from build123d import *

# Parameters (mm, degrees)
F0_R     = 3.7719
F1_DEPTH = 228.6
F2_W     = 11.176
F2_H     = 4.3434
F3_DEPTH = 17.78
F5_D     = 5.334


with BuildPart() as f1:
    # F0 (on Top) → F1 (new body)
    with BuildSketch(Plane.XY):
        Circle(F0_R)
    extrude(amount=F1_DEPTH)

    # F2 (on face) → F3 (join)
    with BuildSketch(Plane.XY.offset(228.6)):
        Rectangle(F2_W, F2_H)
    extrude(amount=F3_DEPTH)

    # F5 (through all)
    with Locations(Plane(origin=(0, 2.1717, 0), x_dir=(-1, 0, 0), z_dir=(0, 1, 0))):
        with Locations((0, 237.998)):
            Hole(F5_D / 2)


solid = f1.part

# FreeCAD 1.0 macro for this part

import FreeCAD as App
import Part
import Sketcher

V = App.Vector
Q = App.Units.Quantity


def add_polygon(sketch, points):
    """Adds a closed chain of lines whose ends are joined by coincident constraints."""
    first, n = sketch.GeometryCount, len(points)
    for a, b in zip(points, points[1:] + points[:1]):
        sketch.addGeometry(Part.LineSegment(App.Vector(*a, 0), App.Vector(*b, 0)), False)
    for i in range(n):
        sketch.addConstraint(Sketcher.Constraint("Coincident", first + i, 2, first + (i + 1) % n, 1))

doc = App.newDocument("Part")
body = doc.addObject("PartDesign::Body", "Body")

# Sketch on XY plane
sketch1 = body.newObject("Sketcher::SketchObject", "Sketch")
sketch1.AttachmentSupport = (doc.getObject("XY_Plane"), [""])
sketch1.MapMode = "FlatFace"
sketch1.addGeometry(Part.Circle(V(0, 0, 0), V(0, 0, 1), 3.8), False)
sketch1.addConstraint([
    Sketcher.Constraint("Coincident", 0, 3, -1, 1),
    Sketcher.Constraint("Diameter", 0, Q("0.297 in")),
])
pad1 = body.newObject("PartDesign::Pad", "Pad")
pad1.Profile = sketch1
pad1.Length = Q("9 in")

# Sketch on XY plane
sketch2 = body.newObject("Sketcher::SketchObject", "Sketch001")
sketch2.AttachmentSupport = (doc.getObject("XY_Plane"), [""])
sketch2.MapMode = "FlatFace"
sketch2.AttachmentOffset = App.Placement(V(0, 0, 9 * 25.4), App.Rotation())
add_polygon(sketch2, [(-5.6, 2.2), (-5.6, -2.2), (5.6, -2.2), (5.6, 2.2)])  # lines 0-3
sketch2.addConstraint([
    Sketcher.Constraint("Vertical", 0),
    Sketcher.Constraint("Horizontal", 1),
    Sketcher.Constraint("Vertical", 2),
    Sketcher.Constraint("Horizontal", 3),
    Sketcher.Constraint("Symmetric", 0, 2, 2, 2, -1, 1),
    Sketcher.Constraint("DistanceX", 1, 1, 1, 2, Q("0.44 in")),
    Sketcher.Constraint("DistanceY", 0, 2, 0, 1, Q("0.171 in")),
])
pad2 = body.newObject("PartDesign::Pad", "Pad001")
pad2.Profile = sketch2
pad2.Length = Q("0.7 in")

# Sketch on XZ plane
sketch3 = body.newObject("Sketcher::SketchObject", "Sketch002")
sketch3.AttachmentSupport = (doc.getObject("XZ_Plane"), [""])
sketch3.MapMode = "FlatFace"
sketch3.AttachmentOffset = App.Placement(V(0, 0, -0.0855 * 25.4), App.Rotation())
sketch3.addGeometry(Part.Circle(V(0, 238, 0), V(0, 0, 1), 2.7), False)
sketch3.addConstraint([
    Sketcher.Constraint("PointOnObject", 0, 3, -2),
    Sketcher.Constraint("Diameter", 0, Q("0.21 in")),
    Sketcher.Constraint("DistanceY", -1, 1, 0, 3, Q("9.37 in")),
])
doc.recompute()
hole = body.newObject("PartDesign::Hole", "Hole")
hole.Profile = sketch3
hole.ThreadType = "None"
hole.Diameter = Q("0.21 in")
hole.DepthType = "ThroughAll"
hole.Reversed = True

doc.recompute()
